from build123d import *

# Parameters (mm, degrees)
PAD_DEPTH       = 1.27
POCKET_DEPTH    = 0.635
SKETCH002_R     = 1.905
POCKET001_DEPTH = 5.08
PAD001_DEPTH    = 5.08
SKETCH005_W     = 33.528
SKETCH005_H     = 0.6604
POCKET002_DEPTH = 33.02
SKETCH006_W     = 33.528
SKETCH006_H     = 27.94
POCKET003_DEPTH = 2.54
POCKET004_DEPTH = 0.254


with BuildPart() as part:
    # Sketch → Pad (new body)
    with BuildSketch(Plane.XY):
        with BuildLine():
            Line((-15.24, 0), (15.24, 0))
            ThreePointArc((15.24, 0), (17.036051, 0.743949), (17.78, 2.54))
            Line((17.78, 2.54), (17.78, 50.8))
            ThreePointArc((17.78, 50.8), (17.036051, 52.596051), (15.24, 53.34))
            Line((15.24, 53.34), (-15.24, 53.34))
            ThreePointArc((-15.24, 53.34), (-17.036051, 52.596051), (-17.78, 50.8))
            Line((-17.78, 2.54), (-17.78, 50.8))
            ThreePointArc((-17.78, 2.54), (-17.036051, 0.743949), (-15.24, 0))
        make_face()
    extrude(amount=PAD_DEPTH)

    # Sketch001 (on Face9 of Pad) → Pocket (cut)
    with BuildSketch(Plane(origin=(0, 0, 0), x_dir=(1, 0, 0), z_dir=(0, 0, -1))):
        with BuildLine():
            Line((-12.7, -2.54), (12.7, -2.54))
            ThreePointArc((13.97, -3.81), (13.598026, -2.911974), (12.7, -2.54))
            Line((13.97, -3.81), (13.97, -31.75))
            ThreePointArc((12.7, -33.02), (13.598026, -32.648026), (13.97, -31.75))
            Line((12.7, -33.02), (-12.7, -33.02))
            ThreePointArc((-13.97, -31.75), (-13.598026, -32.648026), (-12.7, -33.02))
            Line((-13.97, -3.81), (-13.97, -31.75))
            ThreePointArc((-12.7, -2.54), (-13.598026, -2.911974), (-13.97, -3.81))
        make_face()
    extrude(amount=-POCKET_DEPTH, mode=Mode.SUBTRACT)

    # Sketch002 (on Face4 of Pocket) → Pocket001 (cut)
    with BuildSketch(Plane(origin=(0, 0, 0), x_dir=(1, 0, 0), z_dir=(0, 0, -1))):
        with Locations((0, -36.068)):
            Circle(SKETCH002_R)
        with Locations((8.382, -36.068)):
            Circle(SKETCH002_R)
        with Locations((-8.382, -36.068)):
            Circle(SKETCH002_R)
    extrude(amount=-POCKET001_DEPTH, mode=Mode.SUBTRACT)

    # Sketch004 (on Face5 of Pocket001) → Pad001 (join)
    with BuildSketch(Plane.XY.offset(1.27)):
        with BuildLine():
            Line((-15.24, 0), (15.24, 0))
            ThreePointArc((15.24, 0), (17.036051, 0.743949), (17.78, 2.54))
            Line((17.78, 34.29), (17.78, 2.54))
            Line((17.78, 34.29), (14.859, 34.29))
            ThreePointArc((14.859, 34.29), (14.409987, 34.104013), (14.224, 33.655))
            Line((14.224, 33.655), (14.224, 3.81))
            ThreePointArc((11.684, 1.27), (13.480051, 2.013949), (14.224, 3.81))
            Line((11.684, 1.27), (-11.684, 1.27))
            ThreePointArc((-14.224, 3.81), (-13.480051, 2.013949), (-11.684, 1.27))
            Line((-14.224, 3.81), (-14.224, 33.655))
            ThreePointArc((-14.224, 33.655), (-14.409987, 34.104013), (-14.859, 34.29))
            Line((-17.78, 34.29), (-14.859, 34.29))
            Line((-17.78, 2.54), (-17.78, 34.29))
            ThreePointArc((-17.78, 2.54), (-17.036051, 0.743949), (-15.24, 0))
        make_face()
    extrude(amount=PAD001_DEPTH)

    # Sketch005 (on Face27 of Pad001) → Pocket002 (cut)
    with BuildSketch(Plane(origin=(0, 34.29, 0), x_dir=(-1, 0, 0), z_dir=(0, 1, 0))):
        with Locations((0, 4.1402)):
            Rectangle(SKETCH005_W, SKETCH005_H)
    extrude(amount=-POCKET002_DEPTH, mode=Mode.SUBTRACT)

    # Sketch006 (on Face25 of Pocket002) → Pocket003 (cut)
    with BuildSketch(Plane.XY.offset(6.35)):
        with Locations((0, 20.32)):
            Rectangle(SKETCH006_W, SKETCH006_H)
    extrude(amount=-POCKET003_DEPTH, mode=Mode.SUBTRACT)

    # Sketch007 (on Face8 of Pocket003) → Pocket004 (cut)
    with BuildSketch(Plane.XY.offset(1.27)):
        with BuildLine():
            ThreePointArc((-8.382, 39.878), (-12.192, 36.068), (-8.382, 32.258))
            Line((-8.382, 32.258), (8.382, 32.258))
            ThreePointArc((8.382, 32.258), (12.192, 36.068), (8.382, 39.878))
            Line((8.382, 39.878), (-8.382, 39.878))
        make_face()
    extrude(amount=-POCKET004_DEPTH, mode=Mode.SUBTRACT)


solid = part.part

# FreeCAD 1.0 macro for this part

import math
import FreeCAD as App
import Part
import Sketcher

V = App.Vector
Q = App.Units.Quantity


def add_polygon(sketch, points):
    """Adds a closed chain of lines whose ends are joined by coincident constraints."""
    first, n = sketch.GeometryCount, len(points)
    for a, b in zip(points, points[1:] + points[:1]):
        sketch.addGeometry(Part.LineSegment(App.Vector(*a, 0), App.Vector(*b, 0)), False)
    for i in range(n):
        sketch.addConstraint(Sketcher.Constraint("Coincident", first + i, 2, first + (i + 1) % n, 1))

doc = App.newDocument("Part")
body = doc.addObject("PartDesign::Body", "Body")

sketch1 = doc.addObject("Sketcher::SketchObject", "Sketch")
body.addObject(sketch1)
sketch1.AttachmentSupport = (doc.XY_Plane, [""])
sketch1.MapMode = "FlatFace"
sketch1.addGeometry([
    Part.LineSegment(V(-15.2, 0, 0), V(15.2, 0, 0)),
    Part.ArcOfCircle(Part.Circle(V(15.2, 2.5, 0), V(0, 0, 1), 2.5), math.radians(-90), math.radians(0)),
    Part.LineSegment(V(17.8, 2.5, 0), V(17.8, 50.8, 0)),
    Part.ArcOfCircle(Part.Circle(V(15.2, 50.8, 0), V(0, 0, 1), 2.5), math.radians(0), math.radians(90)),
    Part.LineSegment(V(15.2, 53.3, 0), V(-15.2, 53.3, 0)),
    Part.ArcOfCircle(Part.Circle(V(-15.2, 50.8, 0), V(0, 0, 1), 2.5), math.radians(90), math.radians(180)),
    Part.LineSegment(V(-17.8, 50.8, 0), V(-17.8, 2.5, 0)),
    Part.ArcOfCircle(Part.Circle(V(-15.2, 2.5, 0), V(0, 0, 1), 2.5), math.radians(-180), math.radians(-90)),
], False)
sketch1.addConstraint([
    Sketcher.Constraint("Tangent", 0, 2, 1, 1),
    Sketcher.Constraint("Tangent", 1, 2, 2, 1),
    Sketcher.Constraint("Tangent", 2, 2, 3, 1),
    Sketcher.Constraint("Tangent", 3, 2, 4, 1),
    Sketcher.Constraint("Tangent", 4, 2, 5, 1),
    Sketcher.Constraint("Tangent", 5, 2, 6, 1),
    Sketcher.Constraint("Tangent", 6, 2, 7, 1),
    Sketcher.Constraint("Tangent", 7, 2, 0, 1),
    Sketcher.Constraint("Horizontal", 0),
    Sketcher.Constraint("Vertical", 2),
    Sketcher.Constraint("Horizontal", 4),
    Sketcher.Constraint("Vertical", 6),
    Sketcher.Constraint("Equal", 1, 3),
    Sketcher.Constraint("Equal", 3, 5),
    Sketcher.Constraint("Equal", 5, 7),
    Sketcher.Constraint("Symmetric", 0, 2, 7, 2, -1, 1),
    Sketcher.Constraint("Radius", 1, Q("0.1 in")),
    Sketcher.Constraint("DistanceX", 0, 1, 0, 2, Q("1.2 in")),
    Sketcher.Constraint("DistanceY", 2, 1, 2, 2, Q("1.9 in")),
])
pad1 = doc.addObject("PartDesign::Pad", "Pad")
body.addObject(pad1)
pad1.Profile = sketch1
pad1.Length = Q("0.05 in")

sketch2 = doc.addObject("Sketcher::SketchObject", "Sketch001")
body.addObject(sketch2)
sketch2.AttachmentSupport = (doc.XY_Plane, [""])
sketch2.MapMode = "FlatFace"
sketch2.addGeometry([
    Part.LineSegment(V(12.7, 2.5, 0), V(-12.7, 2.5, 0)),
    Part.ArcOfCircle(Part.Circle(V(-12.7, 3.8, 0), V(0, 0, 1), 1.3), math.radians(180), math.radians(270)),
    Part.LineSegment(V(-14, 3.8, 0), V(-14, 31.8, 0)),
    Part.ArcOfCircle(Part.Circle(V(-12.7, 31.8, 0), V(0, 0, 1), 1.3), math.radians(90), math.radians(180)),
    Part.LineSegment(V(-12.7, 33, 0), V(12.7, 33, 0)),
    Part.ArcOfCircle(Part.Circle(V(12.7, 31.8, 0), V(0, 0, 1), 1.3), math.radians(0), math.radians(90)),
    Part.LineSegment(V(14, 31.8, 0), V(14, 3.8, 0)),
    Part.ArcOfCircle(Part.Circle(V(12.7, 3.8, 0), V(0, 0, 1), 1.3), math.radians(-90), math.radians(0)),
], False)
sketch2.addConstraint([
    Sketcher.Constraint("Tangent", 0, 2, 1, 2),
    Sketcher.Constraint("Tangent", 1, 1, 2, 1),
    Sketcher.Constraint("Tangent", 2, 2, 3, 2),
    Sketcher.Constraint("Tangent", 3, 1, 4, 1),
    Sketcher.Constraint("Tangent", 4, 2, 5, 2),
    Sketcher.Constraint("Tangent", 5, 1, 6, 1),
    Sketcher.Constraint("Tangent", 6, 2, 7, 2),
    Sketcher.Constraint("Tangent", 7, 1, 0, 1),
    Sketcher.Constraint("Horizontal", 0),
    Sketcher.Constraint("Vertical", 2),
    Sketcher.Constraint("Horizontal", 4),
    Sketcher.Constraint("Vertical", 6),
    Sketcher.Constraint("Equal", 1, 3),
    Sketcher.Constraint("Equal", 3, 5),
    Sketcher.Constraint("Equal", 5, 7),
    Sketcher.Constraint("DistanceX", 0, 2, 0, 1, Q("1 in")),
    Sketcher.Constraint("Radius", 1, Q("0.0499999 in")),
    Sketcher.Constraint("DistanceY", 2, 1, 2, 2, Q("1.1 in")),
    Sketcher.Constraint("DistanceX", 1, 3, -1, 1, Q("0.5000001 in")),
    Sketcher.Constraint("DistanceY", -1, 1, 0, 2, Q("0.1 in")),
])
pocket1 = doc.addObject("PartDesign::Pocket", "Pocket")
body.addObject(pocket1)
pocket1.Profile = sketch2
pocket1.Length = Q("0.025 in")
pocket1.Reversed = True

sketch3 = doc.addObject("Sketcher::SketchObject", "Sketch002")
body.addObject(sketch3)
sketch3.AttachmentSupport = (doc.XY_Plane, [""])
sketch3.MapMode = "FlatFace"
sketch3.addGeometry([
    Part.Circle(V(0, 36.1, 0), V(0, 0, 1), 1.9),
    Part.Circle(V(8.4, 36.1, 0), V(0, 0, 1), 1.9),
    Part.Circle(V(-8.4, 36.1, 0), V(0, 0, 1), 1.9),
], False)
sketch3.addConstraint([
    Sketcher.Constraint("Equal", 0, 1),
    Sketcher.Constraint("Equal", 1, 2),
    Sketcher.Constraint("Symmetric", 1, 3, 2, 3, -2),
    Sketcher.Constraint("PointOnObject", 0, 3, -2),
    Sketcher.Constraint("Horizontal", 0, 3, 1, 3),
    Sketcher.Constraint("Diameter", 0, Q("0.15 in")),
    Sketcher.Constraint("DistanceY", -1, 1, 0, 3, Q("1.42 in")),
    Sketcher.Constraint("DistanceX", -1, 1, 1, 3, Q("0.33 in")),
])
pocket2 = doc.addObject("PartDesign::Pocket", "Pocket001")
body.addObject(pocket2)
pocket2.Profile = sketch3
pocket2.Length = Q("0.2 in")
pocket2.Reversed = True

sketch4 = doc.addObject("Sketcher::SketchObject", "Sketch003")
body.addObject(sketch4)
sketch4.AttachmentSupport = (doc.XY_Plane, [""])
sketch4.MapMode = "FlatFace"
sketch4.AttachmentOffset = App.Placement(V(0, 0, 0.05 * 25.4), App.Rotation())
sketch4.addGeometry([
    Part.LineSegment(V(-15.2, 0, 0), V(15.2, 0, 0)),
    Part.ArcOfCircle(Part.Circle(V(15.2, 2.5, 0), V(0, 0, 1), 2.5), math.radians(-90), math.radians(0)),
    Part.LineSegment(V(17.8, 2.5, 0), V(17.8, 34.3, 0)),
    Part.LineSegment(V(17.8, 34.3, 0), V(14.9, 34.3, 0)),
    Part.ArcOfCircle(Part.Circle(V(14.9, 33.7, 0), V(0, 0, 1), 0.6), math.radians(90), math.radians(180)),
    Part.LineSegment(V(14.2, 33.7, 0), V(14.2, 3.8, 0)),
    Part.ArcOfCircle(Part.Circle(V(11.7, 3.8, 0), V(0, 0, 1), 2.5), math.radians(-90), math.radians(0)),
    Part.LineSegment(V(11.7, 1.3, 0), V(-11.7, 1.3, 0)),
    Part.ArcOfCircle(Part.Circle(V(-11.7, 3.8, 0), V(0, 0, 1), 2.5), math.radians(-180), math.radians(-90)),
    Part.LineSegment(V(-14.2, 3.8, 0), V(-14.2, 33.7, 0)),
    Part.ArcOfCircle(Part.Circle(V(-14.9, 33.7, 0), V(0, 0, 1), 0.6), math.radians(0), math.radians(90)),
    Part.LineSegment(V(-14.9, 34.3, 0), V(-17.8, 34.3, 0)),
    Part.LineSegment(V(-17.8, 34.3, 0), V(-17.8, 2.5, 0)),
    Part.ArcOfCircle(Part.Circle(V(-15.2, 2.5, 0), V(0, 0, 1), 2.5), math.radians(-180), math.radians(-90)),
], False)
sketch4.addConstraint([
    Sketcher.Constraint("Tangent", 0, 2, 1, 1),
    Sketcher.Constraint("Tangent", 1, 2, 2, 1),
    Sketcher.Constraint("Coincident", 2, 2, 3, 1),
    Sketcher.Constraint("Tangent", 3, 2, 4, 1),
    Sketcher.Constraint("Tangent", 4, 2, 5, 1),
    Sketcher.Constraint("Tangent", 5, 2, 6, 2),
    Sketcher.Constraint("Tangent", 6, 1, 7, 1),
    Sketcher.Constraint("Tangent", 7, 2, 8, 2),
    Sketcher.Constraint("Tangent", 8, 1, 9, 1),
    Sketcher.Constraint("Tangent", 9, 2, 10, 1),
    Sketcher.Constraint("Tangent", 10, 2, 11, 1),
    Sketcher.Constraint("Coincident", 11, 2, 12, 1),
    Sketcher.Constraint("Tangent", 12, 2, 13, 1),
    Sketcher.Constraint("Tangent", 13, 2, 0, 1),
    Sketcher.Constraint("Horizontal", 0),
    Sketcher.Constraint("Vertical", 2),
    Sketcher.Constraint("Horizontal", 3),
    Sketcher.Constraint("Vertical", 5),
    Sketcher.Constraint("Horizontal", 7),
    Sketcher.Constraint("Vertical", 9),
    Sketcher.Constraint("Horizontal", 11),
    Sketcher.Constraint("Vertical", 12),
    Sketcher.Constraint("Equal", 1, 6),
    Sketcher.Constraint("Equal", 6, 8),
    Sketcher.Constraint("Equal", 4, 10),
    Sketcher.Constraint("Equal", 8, 13),
    Sketcher.Constraint("Symmetric", 0, 2, 13, 2, -1, 1),
    Sketcher.Constraint("Symmetric", 4, 3, 10, 3, -2),
    Sketcher.Constraint("Radius", 1, Q("0.1 in")),
    Sketcher.Constraint("DistanceX", 0, 1, 0, 2, Q("1.2 in")),
    Sketcher.Constraint("Radius", 4, Q("0.025 in")),
    Sketcher.Constraint("DistanceX", 7, 2, 7, 1, Q("0.92 in")),
    Sketcher.Constraint("DistanceY", 2, 1, 2, 2, Q("1.25 in")),
    Sketcher.Constraint("DistanceY", 6, 3, 2, 2, Q("1.2 in")),
])
pad2 = doc.addObject("PartDesign::Pad", "Pad001")
body.addObject(pad2)
pad2.Profile = sketch4
pad2.Length = Q("0.2 in")

sketch5 = doc.addObject("Sketcher::SketchObject", "Sketch004")
body.addObject(sketch5)
sketch5.AttachmentSupport = (doc.XZ_Plane, [""])
sketch5.MapMode = "FlatFace"
sketch5.AttachmentOffset = App.Placement(V(0, 0, -1.35 * 25.4), App.Rotation())
add_polygon(sketch5, [(16.8, 4.5), (16.8, 3.8), (-16.8, 3.8), (-16.8, 4.5)])
sketch5.addConstraint([
    Sketcher.Constraint("Vertical", 0),
    Sketcher.Constraint("Horizontal", 1),
    Sketcher.Constraint("Vertical", 2),
    Sketcher.Constraint("Horizontal", 3),
    Sketcher.Constraint("DistanceX", 1, 2, 1, 1, Q("1.32 in")),
    Sketcher.Constraint("DistanceY", 0, 2, 0, 1, Q("0.026 in")),
    Sketcher.Constraint("DistanceX", -1, 1, 0, 2, Q("0.66 in")),
    Sketcher.Constraint("DistanceY", -1, 1, 0, 2, Q("0.15 in")),
])
pocket3 = doc.addObject("PartDesign::Pocket", "Pocket002")
body.addObject(pocket3)
pocket3.Profile = sketch5
pocket3.Length = Q("1.3 in")
pocket3.Reversed = True

sketch6 = doc.addObject("Sketcher::SketchObject", "Sketch005")
body.addObject(sketch6)
sketch6.AttachmentSupport = (doc.XY_Plane, [""])
sketch6.MapMode = "FlatFace"
sketch6.AttachmentOffset = App.Placement(V(0, 0, 0.25 * 25.4), App.Rotation())
add_polygon(sketch6, [(-17, 34), (-17, 6), (17, 6), (17, 34)])
sketch6.addConstraint([
    Sketcher.Constraint("Vertical", 0),
    Sketcher.Constraint("Horizontal", 1),
    Sketcher.Constraint("Vertical", 2),
    Sketcher.Constraint("Horizontal", 3),
    Sketcher.Constraint("DistanceY", 0, 2, 0, 1, Q("1.1 in")),
    Sketcher.Constraint("DistanceX", 1, 1, 1, 2, Q("1.32 in")),
    Sketcher.Constraint("DistanceX", 0, 2, -1, 1, Q("0.66 in")),
    Sketcher.Constraint("DistanceY", -1, 1, 0, 2, Q("0.25 in")),
])
pocket4 = doc.addObject("PartDesign::Pocket", "Pocket003")
body.addObject(pocket4)
pocket4.Profile = sketch6
pocket4.Length = Q("0.1 in")

sketch7 = doc.addObject("Sketcher::SketchObject", "Sketch006")
body.addObject(sketch7)
sketch7.AttachmentSupport = (doc.XY_Plane, [""])
sketch7.MapMode = "FlatFace"
sketch7.AttachmentOffset = App.Placement(V(0, 0, 0.05 * 25.4), App.Rotation())
sketch7.addGeometry([
    Part.ArcOfCircle(Part.Circle(V(-8.4, 36.1, 0), V(0, 0, 1), 3.8), math.radians(90), math.radians(270)),
    Part.LineSegment(V(-8.4, 32.3, 0), V(8.4, 32.3, 0)),
    Part.ArcOfCircle(Part.Circle(V(8.4, 36.1, 0), V(0, 0, 1), 3.8), math.radians(-90), math.radians(90)),
    Part.LineSegment(V(8.4, 39.9, 0), V(-8.4, 39.9, 0)),
], False)
sketch7.addConstraint([
    Sketcher.Constraint("Tangent", 0, 2, 1, 1),
    Sketcher.Constraint("Tangent", 1, 2, 2, 1),
    Sketcher.Constraint("Tangent", 2, 2, 3, 1),
    Sketcher.Constraint("Tangent", 3, 2, 0, 1),
    Sketcher.Constraint("Horizontal", 1),
    Sketcher.Constraint("Horizontal", 3),
    Sketcher.Constraint("Radius", 0, Q("0.15 in")),
    Sketcher.Constraint("DistanceX", 1, 1, 1, 2, Q("0.66 in")),
    Sketcher.Constraint("DistanceX", 0, 3, -1, 1, Q("0.33 in")),
    Sketcher.Constraint("DistanceY", -1, 1, 0, 3, Q("1.42 in")),
])
pocket5 = doc.addObject("PartDesign::Pocket", "Pocket004")
body.addObject(pocket5)
pocket5.Profile = sketch7
pocket5.Length = Q("0.01 in")

doc.recompute()
